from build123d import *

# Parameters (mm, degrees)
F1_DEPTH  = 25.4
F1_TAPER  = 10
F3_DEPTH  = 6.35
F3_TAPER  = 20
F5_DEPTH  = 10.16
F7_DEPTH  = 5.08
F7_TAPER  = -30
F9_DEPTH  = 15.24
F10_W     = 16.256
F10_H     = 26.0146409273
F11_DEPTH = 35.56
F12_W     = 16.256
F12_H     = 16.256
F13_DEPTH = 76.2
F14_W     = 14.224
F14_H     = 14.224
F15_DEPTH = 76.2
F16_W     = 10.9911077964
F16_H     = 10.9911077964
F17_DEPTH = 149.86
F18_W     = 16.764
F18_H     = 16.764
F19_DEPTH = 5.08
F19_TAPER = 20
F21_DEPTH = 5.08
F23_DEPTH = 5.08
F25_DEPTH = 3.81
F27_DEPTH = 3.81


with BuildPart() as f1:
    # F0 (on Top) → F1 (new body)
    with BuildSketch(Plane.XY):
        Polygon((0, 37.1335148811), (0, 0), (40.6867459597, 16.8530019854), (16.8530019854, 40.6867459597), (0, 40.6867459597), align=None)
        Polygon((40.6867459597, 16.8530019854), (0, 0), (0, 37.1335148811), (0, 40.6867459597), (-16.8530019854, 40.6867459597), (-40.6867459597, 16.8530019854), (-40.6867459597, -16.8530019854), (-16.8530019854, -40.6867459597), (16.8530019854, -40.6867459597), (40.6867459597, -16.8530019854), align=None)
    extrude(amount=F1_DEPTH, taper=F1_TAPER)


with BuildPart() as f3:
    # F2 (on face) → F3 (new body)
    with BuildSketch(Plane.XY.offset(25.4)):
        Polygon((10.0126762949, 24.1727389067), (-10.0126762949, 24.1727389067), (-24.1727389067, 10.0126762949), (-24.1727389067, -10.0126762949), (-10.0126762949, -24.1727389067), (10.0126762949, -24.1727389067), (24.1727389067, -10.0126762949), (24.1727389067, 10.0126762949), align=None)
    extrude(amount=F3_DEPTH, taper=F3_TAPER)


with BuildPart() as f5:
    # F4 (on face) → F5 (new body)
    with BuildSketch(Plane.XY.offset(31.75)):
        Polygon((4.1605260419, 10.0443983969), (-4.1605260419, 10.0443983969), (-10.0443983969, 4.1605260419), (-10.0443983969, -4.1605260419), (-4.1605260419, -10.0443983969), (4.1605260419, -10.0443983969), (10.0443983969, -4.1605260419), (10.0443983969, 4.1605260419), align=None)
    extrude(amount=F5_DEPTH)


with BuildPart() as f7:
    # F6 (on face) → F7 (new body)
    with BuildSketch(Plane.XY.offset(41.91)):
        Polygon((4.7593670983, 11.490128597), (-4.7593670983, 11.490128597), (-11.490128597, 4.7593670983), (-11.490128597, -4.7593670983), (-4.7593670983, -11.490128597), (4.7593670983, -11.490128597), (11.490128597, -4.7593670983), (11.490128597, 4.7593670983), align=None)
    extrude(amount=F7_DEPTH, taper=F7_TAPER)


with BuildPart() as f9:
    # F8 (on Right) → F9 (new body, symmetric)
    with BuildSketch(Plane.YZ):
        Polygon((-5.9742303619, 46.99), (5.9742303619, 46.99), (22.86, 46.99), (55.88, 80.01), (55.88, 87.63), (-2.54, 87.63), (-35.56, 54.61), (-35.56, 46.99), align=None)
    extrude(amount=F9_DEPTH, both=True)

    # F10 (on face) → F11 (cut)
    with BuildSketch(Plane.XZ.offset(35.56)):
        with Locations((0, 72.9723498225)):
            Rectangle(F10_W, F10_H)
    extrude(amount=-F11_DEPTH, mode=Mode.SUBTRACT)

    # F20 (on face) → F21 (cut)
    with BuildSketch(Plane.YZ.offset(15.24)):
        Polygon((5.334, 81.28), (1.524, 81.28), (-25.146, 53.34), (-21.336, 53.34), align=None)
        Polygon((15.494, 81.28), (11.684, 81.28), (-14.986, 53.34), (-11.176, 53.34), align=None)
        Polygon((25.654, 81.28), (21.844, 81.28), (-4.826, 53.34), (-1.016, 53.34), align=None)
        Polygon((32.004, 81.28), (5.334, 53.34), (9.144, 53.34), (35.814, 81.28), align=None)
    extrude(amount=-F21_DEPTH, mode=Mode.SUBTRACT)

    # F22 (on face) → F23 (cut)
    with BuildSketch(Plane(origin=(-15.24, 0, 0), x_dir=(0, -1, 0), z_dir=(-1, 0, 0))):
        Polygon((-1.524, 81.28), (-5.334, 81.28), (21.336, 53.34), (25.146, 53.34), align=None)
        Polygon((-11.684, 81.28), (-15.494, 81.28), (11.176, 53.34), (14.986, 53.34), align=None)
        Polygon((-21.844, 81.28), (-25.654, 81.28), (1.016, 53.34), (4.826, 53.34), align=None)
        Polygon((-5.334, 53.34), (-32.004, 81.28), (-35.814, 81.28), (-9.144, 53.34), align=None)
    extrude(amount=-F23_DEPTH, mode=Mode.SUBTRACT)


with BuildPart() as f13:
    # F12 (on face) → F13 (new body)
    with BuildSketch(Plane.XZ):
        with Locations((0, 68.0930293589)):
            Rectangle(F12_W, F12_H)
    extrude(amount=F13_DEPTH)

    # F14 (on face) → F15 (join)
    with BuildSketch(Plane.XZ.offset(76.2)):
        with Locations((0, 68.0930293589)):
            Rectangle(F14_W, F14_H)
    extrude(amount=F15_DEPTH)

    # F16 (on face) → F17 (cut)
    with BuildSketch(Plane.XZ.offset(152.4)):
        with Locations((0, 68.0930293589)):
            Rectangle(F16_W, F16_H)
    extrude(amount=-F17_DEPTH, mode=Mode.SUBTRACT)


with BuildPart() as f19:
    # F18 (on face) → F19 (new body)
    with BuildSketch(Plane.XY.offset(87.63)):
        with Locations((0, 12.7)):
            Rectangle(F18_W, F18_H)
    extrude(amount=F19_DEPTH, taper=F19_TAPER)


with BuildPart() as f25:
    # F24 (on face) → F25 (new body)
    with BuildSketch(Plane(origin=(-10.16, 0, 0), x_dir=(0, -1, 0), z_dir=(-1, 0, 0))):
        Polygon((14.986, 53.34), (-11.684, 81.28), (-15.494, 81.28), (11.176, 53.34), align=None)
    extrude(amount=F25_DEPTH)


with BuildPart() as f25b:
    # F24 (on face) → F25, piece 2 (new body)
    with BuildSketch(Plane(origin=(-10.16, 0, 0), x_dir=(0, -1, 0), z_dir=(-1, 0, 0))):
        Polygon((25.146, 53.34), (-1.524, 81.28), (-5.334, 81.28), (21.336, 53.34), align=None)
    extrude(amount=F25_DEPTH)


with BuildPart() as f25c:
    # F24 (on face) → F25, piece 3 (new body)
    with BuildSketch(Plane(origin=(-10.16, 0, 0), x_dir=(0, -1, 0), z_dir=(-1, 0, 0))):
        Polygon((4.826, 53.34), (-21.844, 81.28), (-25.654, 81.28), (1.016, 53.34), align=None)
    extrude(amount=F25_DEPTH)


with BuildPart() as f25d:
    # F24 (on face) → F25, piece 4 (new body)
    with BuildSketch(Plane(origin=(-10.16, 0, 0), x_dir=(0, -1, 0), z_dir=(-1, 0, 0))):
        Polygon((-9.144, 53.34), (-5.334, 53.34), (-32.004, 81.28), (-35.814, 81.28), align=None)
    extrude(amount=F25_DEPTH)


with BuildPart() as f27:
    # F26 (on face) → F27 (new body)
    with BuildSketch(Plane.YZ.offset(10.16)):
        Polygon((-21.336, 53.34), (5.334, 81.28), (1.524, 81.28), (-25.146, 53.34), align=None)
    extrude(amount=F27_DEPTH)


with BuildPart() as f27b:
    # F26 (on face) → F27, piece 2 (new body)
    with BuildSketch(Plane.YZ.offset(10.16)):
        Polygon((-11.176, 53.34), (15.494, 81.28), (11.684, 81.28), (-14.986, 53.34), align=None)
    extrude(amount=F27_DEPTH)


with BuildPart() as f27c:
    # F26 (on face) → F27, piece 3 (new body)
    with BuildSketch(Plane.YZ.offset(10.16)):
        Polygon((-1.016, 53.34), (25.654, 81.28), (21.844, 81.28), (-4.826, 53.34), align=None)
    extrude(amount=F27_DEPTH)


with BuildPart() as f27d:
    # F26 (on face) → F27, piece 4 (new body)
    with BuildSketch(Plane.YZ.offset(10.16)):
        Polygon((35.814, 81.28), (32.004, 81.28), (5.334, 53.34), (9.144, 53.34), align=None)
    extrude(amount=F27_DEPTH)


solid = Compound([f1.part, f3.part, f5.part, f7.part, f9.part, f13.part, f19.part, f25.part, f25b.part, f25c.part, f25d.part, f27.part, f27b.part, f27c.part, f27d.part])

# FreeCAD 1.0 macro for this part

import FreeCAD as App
import Part
import Sketcher
from FreeCAD import Vector
Q = App.Units.Quantity

doc = App.newDocument("Part")
body = doc.addObject("PartDesign::Body", "Body")

sketch1 = body.newObject("Sketcher::SketchObject", "Sketch")
sketch1.AttachmentSupport = (doc.getObject("XY_Plane"), [""])
sketch1.MapMode = "FlatFace"
sketch1.addGeometry([
    Part.LineSegment(Vector(41, 17, 0), Vector(17, 41, 0)),
    Part.LineSegment(Vector(17, 41, 0), Vector(-17, 41, 0)),
    Part.LineSegment(Vector(-17, 41, 0), Vector(-41, 17, 0)),
    Part.LineSegment(Vector(-41, 17, 0), Vector(-41, -17, 0)),
    Part.LineSegment(Vector(-41, -17, 0), Vector(-17, -41, 0)),
    Part.LineSegment(Vector(-17, -41, 0), Vector(17, -41, 0)),
    Part.LineSegment(Vector(17, -41, 0), Vector(41, -17, 0)),
    Part.LineSegment(Vector(41, -17, 0), Vector(41, 17, 0)),
], False)
sketch1.addConstraint([
    Sketcher.Constraint("Coincident", 0, 2, 1, 1),
    Sketcher.Constraint("Coincident", 1, 2, 2, 1),
    Sketcher.Constraint("Coincident", 2, 2, 3, 1),
    Sketcher.Constraint("Coincident", 3, 2, 4, 1),
    Sketcher.Constraint("Coincident", 4, 2, 5, 1),
    Sketcher.Constraint("Coincident", 5, 2, 6, 1),
    Sketcher.Constraint("Coincident", 6, 2, 7, 1),
    Sketcher.Constraint("Coincident", 7, 2, 0, 1),
    Sketcher.Constraint("Horizontal", 1),
    Sketcher.Constraint("Vertical", 3),
    Sketcher.Constraint("Horizontal", 5),
    Sketcher.Constraint("Vertical", 7),
    Sketcher.Constraint("Symmetric", 0, 2, 4, 2, -1, 1),
    Sketcher.Constraint("Symmetric", 2, 2, 6, 2, -1, 1),
    Sketcher.Constraint("Perpendicular", 0, 2),
    Sketcher.Constraint("Perpendicular", 2, 4),
    Sketcher.Constraint("Perpendicular", 4, 6),
    Sketcher.Constraint("Horizontal", 3, 2, 6, 2),
    Sketcher.Constraint("Vertical", 1, 2, 4, 2),
    Sketcher.Constraint("Equal", 5, 3),
    Sketcher.Constraint("DistanceX", -1, 1, 0, 2, 16.853002),
    Sketcher.Constraint("DistanceY", 4, 2, 1, 2, 81.373492),
])
pad1 = body.newObject("PartDesign::Pad", "Pad")
pad1.Profile = sketch1
pad1.Length = Q("1 in")
pad1.TaperAngle = -10
body2 = doc.addObject("PartDesign::Body", "Body001")

sketch2 = body2.newObject("Sketcher::SketchObject", "Sketch001")
sketch2.AttachmentSupport = (doc.getObject("XY_Plane001"), [""])
sketch2.MapMode = "FlatFace"
sketch2.AttachmentOffset = App.Placement(Vector(0, 0, 1 * 25.4), App.Rotation())
sketch2.addGeometry([
    Part.LineSegment(Vector(10, 24, 0), Vector(-10, 24, 0)),
    Part.LineSegment(Vector(-10, 24, 0), Vector(-24, 10, 0)),
    Part.LineSegment(Vector(-24, 10, 0), Vector(-24, -10, 0)),
    Part.LineSegment(Vector(-24, -10, 0), Vector(-10, -24, 0)),
    Part.LineSegment(Vector(-10, -24, 0), Vector(10, -24, 0)),
    Part.LineSegment(Vector(10, -24, 0), Vector(24, -10, 0)),
    Part.LineSegment(Vector(24, -10, 0), Vector(24, 10, 0)),
    Part.LineSegment(Vector(24, 10, 0), Vector(10, 24, 0)),
], False)
sketch2.addConstraint([
    Sketcher.Constraint("Coincident", 0, 2, 1, 1),
    Sketcher.Constraint("Coincident", 1, 2, 2, 1),
    Sketcher.Constraint("Coincident", 2, 2, 3, 1),
    Sketcher.Constraint("Coincident", 3, 2, 4, 1),
    Sketcher.Constraint("Coincident", 4, 2, 5, 1),
    Sketcher.Constraint("Coincident", 5, 2, 6, 1),
    Sketcher.Constraint("Coincident", 6, 2, 7, 1),
    Sketcher.Constraint("Coincident", 7, 2, 0, 1),
    Sketcher.Constraint("Horizontal", 0),
    Sketcher.Constraint("Vertical", 2),
    Sketcher.Constraint("Horizontal", 4),
    Sketcher.Constraint("Vertical", 6),
    Sketcher.Constraint("Symmetric", 0, 2, 4, 2, -1, 1),
    Sketcher.Constraint("Symmetric", 1, 2, 5, 2, -1, 1),
    Sketcher.Constraint("Perpendicular", 1, 3),
    Sketcher.Constraint("Perpendicular", 5, 7),
    Sketcher.Constraint("Horizontal", 2, 2, 5, 2),
    Sketcher.Constraint("Horizontal", 1, 2, 6, 2),
    Sketcher.Constraint("Vertical", 0, 2, 3, 2),
    Sketcher.Constraint("Equal", 4, 2),
    Sketcher.Constraint("DistanceX", 0, 2, -1, 1, Q("0.3941999 in")),
    Sketcher.Constraint("DistanceY", -1, 1, 0, 2, 24.172739),
])
pad2 = body2.newObject("PartDesign::Pad", "Pad001")
pad2.Profile = sketch2
pad2.Length = Q("0.25 in")
pad2.TaperAngle = -20
body3 = doc.addObject("PartDesign::Body", "Body002")

sketch3 = body3.newObject("Sketcher::SketchObject", "Sketch002")
sketch3.AttachmentSupport = (doc.getObject("XY_Plane002"), [""])
sketch3.MapMode = "FlatFace"
sketch3.AttachmentOffset = App.Placement(Vector(0, 0, 1.25 * 25.4), App.Rotation())
sketch3.addGeometry([
    Part.LineSegment(Vector(4, 10, 0), Vector(-4, 10, 0)),
    Part.LineSegment(Vector(-4, 10, 0), Vector(-10, 4, 0)),
    Part.LineSegment(Vector(-10, 4, 0), Vector(-10, -4, 0)),
    Part.LineSegment(Vector(-10, -4, 0), Vector(-4, -10, 0)),
    Part.LineSegment(Vector(-4, -10, 0), Vector(4, -10, 0)),
    Part.LineSegment(Vector(4, -10, 0), Vector(10, -4, 0)),
    Part.LineSegment(Vector(10, -4, 0), Vector(10, 4, 0)),
    Part.LineSegment(Vector(10, 4, 0), Vector(4, 10, 0)),
], False)
sketch3.addConstraint([
    Sketcher.Constraint("Coincident", 0, 2, 1, 1),
    Sketcher.Constraint("Coincident", 1, 2, 2, 1),
    Sketcher.Constraint("Coincident", 2, 2, 3, 1),
    Sketcher.Constraint("Coincident", 3, 2, 4, 1),
    Sketcher.Constraint("Coincident", 4, 2, 5, 1),
    Sketcher.Constraint("Coincident", 5, 2, 6, 1),
    Sketcher.Constraint("Coincident", 6, 2, 7, 1),
    Sketcher.Constraint("Coincident", 7, 2, 0, 1),
    Sketcher.Constraint("Horizontal", 0),
    Sketcher.Constraint("Vertical", 2),
    Sketcher.Constraint("Horizontal", 4),
    Sketcher.Constraint("Vertical", 6),
    Sketcher.Constraint("Symmetric", 0, 2, 4, 2, -1, 1),
    Sketcher.Constraint("Symmetric", 1, 2, 5, 2, -1, 1),
    Sketcher.Constraint("Perpendicular", 1, 3),
    Sketcher.Constraint("Perpendicular", 5, 7),
    Sketcher.Constraint("Horizontal", 2, 2, 5, 2),
    Sketcher.Constraint("Horizontal", 1, 2, 6, 2),
    Sketcher.Constraint("Vertical", 0, 2, 3, 2),
    Sketcher.Constraint("Equal", 4, 2),
    Sketcher.Constraint("DistanceY", -1, 1, 0, 2, 10.044398),
    Sketcher.Constraint("DistanceX", 0, 2, 0, 1, 8.321052),
])
pad3 = body3.newObject("PartDesign::Pad", "Pad002")
pad3.Profile = sketch3
pad3.Length = Q("0.4 in")
body4 = doc.addObject("PartDesign::Body", "Body003")

sketch4 = body4.newObject("Sketcher::SketchObject", "Sketch003")
sketch4.AttachmentSupport = (doc.getObject("XY_Plane003"), [""])
sketch4.MapMode = "FlatFace"
sketch4.AttachmentOffset = App.Placement(Vector(0, 0, 1.65 * 25.4), App.Rotation())
sketch4.addGeometry([
    Part.LineSegment(Vector(5, 11, 0), Vector(-5, 11, 0)),
    Part.LineSegment(Vector(-5, 11, 0), Vector(-11, 5, 0)),
    Part.LineSegment(Vector(-11, 5, 0), Vector(-11, -5, 0)),
    Part.LineSegment(Vector(-11, -5, 0), Vector(-5, -11, 0)),
    Part.LineSegment(Vector(-5, -11, 0), Vector(5, -11, 0)),
    Part.LineSegment(Vector(5, -11, 0), Vector(11, -5, 0)),
    Part.LineSegment(Vector(11, -5, 0), Vector(11, 5, 0)),
    Part.LineSegment(Vector(11, 5, 0), Vector(5, 11, 0)),
], False)
sketch4.addConstraint([
    Sketcher.Constraint("Coincident", 0, 2, 1, 1),
    Sketcher.Constraint("Coincident", 1, 2, 2, 1),
    Sketcher.Constraint("Coincident", 2, 2, 3, 1),
    Sketcher.Constraint("Coincident", 3, 2, 4, 1),
    Sketcher.Constraint("Coincident", 4, 2, 5, 1),
    Sketcher.Constraint("Coincident", 5, 2, 6, 1),
    Sketcher.Constraint("Coincident", 6, 2, 7, 1),
    Sketcher.Constraint("Coincident", 7, 2, 0, 1),
    Sketcher.Constraint("Horizontal", 0),
    Sketcher.Constraint("Vertical", 2),
    Sketcher.Constraint("Horizontal", 4),
    Sketcher.Constraint("Vertical", 6),
    Sketcher.Constraint("Symmetric", 0, 2, 4, 2, -1, 1),
    Sketcher.Constraint("Symmetric", 1, 2, 5, 2, -1, 1),
    Sketcher.Constraint("Perpendicular", 1, 3),
    Sketcher.Constraint("Perpendicular", 5, 7),
    Sketcher.Constraint("Horizontal", 2, 2, 5, 2),
    Sketcher.Constraint("Horizontal", 1, 2, 6, 2),
    Sketcher.Constraint("Vertical", 0, 2, 3, 2),
    Sketcher.Constraint("Equal", 4, 2),
    Sketcher.Constraint("DistanceX", 0, 2, 0, 1, 9.518734),
    Sketcher.Constraint("DistanceY", -1, 1, 0, 2, 11.490129),
])
pad4 = body4.newObject("PartDesign::Pad", "Pad003")
pad4.Profile = sketch4
pad4.Length = Q("0.2 in")
pad4.TaperAngle = 30
body5 = doc.addObject("PartDesign::Body", "Body004")

sketch5 = body5.newObject("Sketcher::SketchObject", "Sketch004")
sketch5.AttachmentSupport = (doc.getObject("YZ_Plane004"), [""])
sketch5.MapMode = "FlatFace"
sketch5.addGeometry([
    Part.LineSegment(Vector(23, 47, 0), Vector(56, 80, 0)),
    Part.LineSegment(Vector(56, 80, 0), Vector(56, 88, 0)),
    Part.LineSegment(Vector(56, 88, 0), Vector(-3, 88, 0)),
    Part.LineSegment(Vector(-3, 88, 0), Vector(-36, 55, 0)),
    Part.LineSegment(Vector(-36, 55, 0), Vector(-36, 47, 0)),
    Part.LineSegment(Vector(-36, 47, 0), Vector(23, 47, 0)),
], False)
sketch5.addConstraint([
    Sketcher.Constraint("Coincident", 0, 2, 1, 1),
    Sketcher.Constraint("Coincident", 1, 2, 2, 1),
    Sketcher.Constraint("Coincident", 2, 2, 3, 1),
    Sketcher.Constraint("Coincident", 3, 2, 4, 1),
    Sketcher.Constraint("Coincident", 4, 2, 5, 1),
    Sketcher.Constraint("Coincident", 5, 2, 0, 1),
    Sketcher.Constraint("Vertical", 1),
    Sketcher.Constraint("Horizontal", 2),
    Sketcher.Constraint("Vertical", 4),
    Sketcher.Constraint("Horizontal", 5),
    Sketcher.Constraint("Parallel", 0, 3),
    Sketcher.Constraint("Equal", 2, 5),
    Sketcher.Constraint("DistanceX", 2, 2, 2, 1, Q("2.3 in")),
    Sketcher.Constraint("DistanceY", 1, 1, 1, 2, Q("0.3 in")),
    Sketcher.Constraint("Angle", 0, Q("45 deg")),
    Sketcher.Constraint("DistanceY", 3, 2, 0, 2, Q("1 in")),
    Sketcher.Constraint("DistanceX", -1, 1, 0, 2, Q("2.2 in")),
    Sketcher.Constraint("DistanceY", -1, 1, 0, 2, Q("3.15 in")),
])
pad5 = body5.newObject("PartDesign::Pad", "Pad004")
pad5.Profile = sketch5
pad5.Length = Q("1.2 in")
pad5.Midplane = True

sketch6 = body5.newObject("Sketcher::SketchObject", "Sketch005")
sketch6.AttachmentSupport = (doc.getObject("XZ_Plane004"), [""])
sketch6.MapMode = "FlatFace"
sketch6.AttachmentOffset = App.Placement(Vector(0, 0, 1.4 * 25.4), App.Rotation())
sketch6.addGeometry([
    Part.LineSegment(Vector(-8, 86, 0), Vector(-8, 60, 0)),
    Part.LineSegment(Vector(-8, 60, 0), Vector(8, 60, 0)),
    Part.LineSegment(Vector(8, 60, 0), Vector(8, 86, 0)),
    Part.LineSegment(Vector(8, 86, 0), Vector(-8, 86, 0)),
], False)
sketch6.addConstraint([
    Sketcher.Constraint("Coincident", 0, 2, 1, 1),
    Sketcher.Constraint("Coincident", 1, 2, 2, 1),
    Sketcher.Constraint("Coincident", 2, 2, 3, 1),
    Sketcher.Constraint("Coincident", 3, 2, 0, 1),
    Sketcher.Constraint("Vertical", 0),
    Sketcher.Constraint("Horizontal", 1),
    Sketcher.Constraint("Vertical", 2),
    Sketcher.Constraint("Horizontal", 3),
    Sketcher.Constraint("DistanceX", 1, 1, 1, 2, Q("0.64 in")),
    Sketcher.Constraint("DistanceX", 0, 2, -1, 1, Q("0.32 in")),
    Sketcher.Constraint("DistanceY", 0, 2, 0, 1, 26.014641),
    Sketcher.Constraint("DistanceY", -1, 1, 0, 2, 59.965029),
])
pocket1 = body5.newObject("PartDesign::Pocket", "Pocket")
pocket1.Profile = sketch6
pocket1.Length = Q("1.4 in")

sketch7 = body5.newObject("Sketcher::SketchObject", "Sketch006")
sketch7.AttachmentSupport = (doc.getObject("YZ_Plane004"), [""])
sketch7.MapMode = "FlatFace"
sketch7.AttachmentOffset = App.Placement(Vector(0, 0, 0.6 * 25.4), App.Rotation())
sketch7.addGeometry([
    Part.LineSegment(Vector(5.3, 81.3, 0), Vector(1.5, 81.3, 0)),
    Part.LineSegment(Vector(1.5, 81.3, 0), Vector(-25.1, 53.3, 0)),
    Part.LineSegment(Vector(-25.1, 53.3, 0), Vector(-21.3, 53.3, 0)),
    Part.LineSegment(Vector(-21.3, 53.3, 0), Vector(5.3, 81.3, 0)),
    Part.LineSegment(Vector(15.5, 81.3, 0), Vector(11.7, 81.3, 0)),
    Part.LineSegment(Vector(11.7, 81.3, 0), Vector(-15, 53.3, 0)),
    Part.LineSegment(Vector(-15, 53.3, 0), Vector(-11.2, 53.3, 0)),
    Part.LineSegment(Vector(-11.2, 53.3, 0), Vector(15.5, 81.3, 0)),
    Part.LineSegment(Vector(25.7, 81.3, 0), Vector(21.8, 81.3, 0)),
    Part.LineSegment(Vector(21.8, 81.3, 0), Vector(-4.8, 53.3, 0)),
    Part.LineSegment(Vector(-4.8, 53.3, 0), Vector(-1, 53.3, 0)),
    Part.LineSegment(Vector(-1, 53.3, 0), Vector(25.7, 81.3, 0)),
    Part.LineSegment(Vector(32, 81.3, 0), Vector(5.3, 53.3, 0)),
    Part.LineSegment(Vector(5.3, 53.3, 0), Vector(9.1, 53.3, 0)),
    Part.LineSegment(Vector(9.1, 53.3, 0), Vector(35.8, 81.3, 0)),
    Part.LineSegment(Vector(35.8, 81.3, 0), Vector(32, 81.3, 0)),
], False)
sketch7.addConstraint([
    Sketcher.Constraint("Coincident", 0, 2, 1, 1),
    Sketcher.Constraint("Coincident", 1, 2, 2, 1),
    Sketcher.Constraint("Coincident", 2, 2, 3, 1),
    Sketcher.Constraint("Coincident", 3, 2, 0, 1),
    Sketcher.Constraint("Coincident", 4, 2, 5, 1),
    Sketcher.Constraint("Coincident", 5, 2, 6, 1),
    Sketcher.Constraint("Coincident", 6, 2, 7, 1),
    Sketcher.Constraint("Coincident", 7, 2, 4, 1),
    Sketcher.Constraint("Coincident", 8, 2, 9, 1),
    Sketcher.Constraint("Coincident", 9, 2, 10, 1),
    Sketcher.Constraint("Coincident", 10, 2, 11, 1),
    Sketcher.Constraint("Coincident", 11, 2, 8, 1),
    Sketcher.Constraint("Coincident", 12, 2, 13, 1),
    Sketcher.Constraint("Coincident", 13, 2, 14, 1),
    Sketcher.Constraint("Coincident", 14, 2, 15, 1),
    Sketcher.Constraint("Coincident", 15, 2, 12, 1),
    Sketcher.Constraint("Horizontal", 0),
    Sketcher.Constraint("Horizontal", 2),
    Sketcher.Constraint("Horizontal", 4),
    Sketcher.Constraint("Horizontal", 6),
    Sketcher.Constraint("Horizontal", 8),
    Sketcher.Constraint("Horizontal", 10),
    Sketcher.Constraint("Horizontal", 13),
    Sketcher.Constraint("Horizontal", 15),
    Sketcher.Constraint("Parallel", 1, 3),
    Sketcher.Constraint("Parallel", 3, 5),
    Sketcher.Constraint("Parallel", 5, 7),
    Sketcher.Constraint("Parallel", 7, 9),
    Sketcher.Constraint("Parallel", 9, 11),
    Sketcher.Constraint("Parallel", 11, 12),
    Sketcher.Constraint("Parallel", 12, 14),
    Sketcher.Constraint("Horizontal", 3, 2, 4, 2),
    Sketcher.Constraint("Horizontal", 2, 2, 5, 2),
    Sketcher.Constraint("Horizontal", 7, 2, 8, 2),
    Sketcher.Constraint("Horizontal", 6, 2, 9, 2),
    Sketcher.Constraint("Horizontal", 10, 2, 12, 2),
    Sketcher.Constraint("Horizontal", 11, 2, 14, 2),
    Sketcher.Constraint("Vertical", 3, 2, 12, 2),
    Sketcher.Constraint("Equal", 2, 4),
    Sketcher.Constraint("Equal", 6, 8),
    Sketcher.Constraint("Equal", 10, 13),
    Sketcher.Constraint("DistanceX", 0, 2, 0, 1, Q("0.15 in")),
    Sketcher.Constraint("DistanceY", -1, 1, 0, 2, Q("3.2 in")),
    Sketcher.Constraint("DistanceY", -1, 1, 1, 2, Q("2.1 in")),
    Sketcher.Constraint("DistanceX", 2, 2, 0, 2, Q("0.9 in")),
    Sketcher.Constraint("DistanceX", 0, 2, 4, 2, Q("0.4 in")),
    Sketcher.Constraint("DistanceX", 4, 2, 8, 2, Q("0.4 in")),
    Sketcher.Constraint("DistanceX", -1, 1, 0, 2, Q("0.06 in")),
])
pocket2 = body5.newObject("PartDesign::Pocket", "Pocket001")
pocket2.Profile = sketch7
pocket2.Length = Q("0.2 in")

sketch8 = body5.newObject("Sketcher::SketchObject", "Sketch007")
sketch8.AttachmentSupport = (doc.getObject("YZ_Plane004"), [""])
sketch8.MapMode = "FlatFace"
sketch8.AttachmentOffset = App.Placement(Vector(0, 0, -0.6 * 25.4), App.Rotation())
sketch8.addGeometry([
    Part.LineSegment(Vector(1.5, 81.3, 0), Vector(5.3, 81.3, 0)),
    Part.LineSegment(Vector(5.3, 81.3, 0), Vector(-21.3, 53.3, 0)),
    Part.LineSegment(Vector(-21.3, 53.3, 0), Vector(-25.1, 53.3, 0)),
    Part.LineSegment(Vector(-25.1, 53.3, 0), Vector(1.5, 81.3, 0)),
    Part.LineSegment(Vector(11.7, 81.3, 0), Vector(15.5, 81.3, 0)),
    Part.LineSegment(Vector(15.5, 81.3, 0), Vector(-11.2, 53.3, 0)),
    Part.LineSegment(Vector(-11.2, 53.3, 0), Vector(-15, 53.3, 0)),
    Part.LineSegment(Vector(-15, 53.3, 0), Vector(11.7, 81.3, 0)),
    Part.LineSegment(Vector(21.8, 81.3, 0), Vector(25.7, 81.3, 0)),
    Part.LineSegment(Vector(25.7, 81.3, 0), Vector(-1, 53.3, 0)),
    Part.LineSegment(Vector(-1, 53.3, 0), Vector(-4.8, 53.3, 0)),
    Part.LineSegment(Vector(-4.8, 53.3, 0), Vector(21.8, 81.3, 0)),
    Part.LineSegment(Vector(5.3, 53.3, 0), Vector(32, 81.3, 0)),
    Part.LineSegment(Vector(32, 81.3, 0), Vector(35.8, 81.3, 0)),
    Part.LineSegment(Vector(35.8, 81.3, 0), Vector(9.1, 53.3, 0)),
    Part.LineSegment(Vector(9.1, 53.3, 0), Vector(5.3, 53.3, 0)),
], False)
sketch8.addConstraint([
    Sketcher.Constraint("Coincident", 0, 2, 1, 1),
    Sketcher.Constraint("Coincident", 1, 2, 2, 1),
    Sketcher.Constraint("Coincident", 2, 2, 3, 1),
    Sketcher.Constraint("Coincident", 3, 2, 0, 1),
    Sketcher.Constraint("Coincident", 4, 2, 5, 1),
    Sketcher.Constraint("Coincident", 5, 2, 6, 1),
    Sketcher.Constraint("Coincident", 6, 2, 7, 1),
    Sketcher.Constraint("Coincident", 7, 2, 4, 1),
    Sketcher.Constraint("Coincident", 8, 2, 9, 1),
    Sketcher.Constraint("Coincident", 9, 2, 10, 1),
    Sketcher.Constraint("Coincident", 10, 2, 11, 1),
    Sketcher.Constraint("Coincident", 11, 2, 8, 1),
    Sketcher.Constraint("Coincident", 12, 2, 13, 1),
    Sketcher.Constraint("Coincident", 13, 2, 14, 1),
    Sketcher.Constraint("Coincident", 14, 2, 15, 1),
    Sketcher.Constraint("Coincident", 15, 2, 12, 1),
    Sketcher.Constraint("Horizontal", 0),
    Sketcher.Constraint("Horizontal", 2),
    Sketcher.Constraint("Horizontal", 4),
    Sketcher.Constraint("Horizontal", 6),
    Sketcher.Constraint("Horizontal", 8),
    Sketcher.Constraint("Horizontal", 10),
    Sketcher.Constraint("Horizontal", 13),
    Sketcher.Constraint("Horizontal", 15),
    Sketcher.Constraint("Parallel", 1, 3),
    Sketcher.Constraint("Parallel", 3, 5),
    Sketcher.Constraint("Parallel", 5, 7),
    Sketcher.Constraint("Parallel", 7, 9),
    Sketcher.Constraint("Parallel", 9, 11),
    Sketcher.Constraint("Parallel", 11, 12),
    Sketcher.Constraint("Parallel", 12, 14),
    Sketcher.Constraint("Horizontal", 3, 2, 4, 2),
    Sketcher.Constraint("Horizontal", 2, 2, 5, 2),
    Sketcher.Constraint("Horizontal", 7, 2, 8, 2),
    Sketcher.Constraint("Horizontal", 6, 2, 9, 2),
    Sketcher.Constraint("Horizontal", 11, 2, 12, 2),
    Sketcher.Constraint("Horizontal", 10, 2, 14, 2),
    Sketcher.Constraint("Vertical", 0, 2, 15, 2),
    Sketcher.Constraint("Equal", 2, 4),
    Sketcher.Constraint("Equal", 6, 8),
    Sketcher.Constraint("Equal", 10, 13),
    Sketcher.Constraint("DistanceX", 0, 1, 0, 2, Q("0.15 in")),
    Sketcher.Constraint("DistanceY", -1, 1, 0, 2, Q("3.2 in")),
    Sketcher.Constraint("DistanceY", -1, 1, 1, 2, Q("2.1 in")),
    Sketcher.Constraint("DistanceX", 2, 2, 0, 2, Q("1.2 in")),
    Sketcher.Constraint("DistanceX", 0, 2, 4, 2, Q("0.4 in")),
    Sketcher.Constraint("DistanceX", 4, 2, 8, 2, Q("0.4 in")),
    Sketcher.Constraint("DistanceX", -1, 1, 0, 2, Q("0.21 in")),
])
pocket3 = body5.newObject("PartDesign::Pocket", "Pocket002")
pocket3.Profile = sketch8
pocket3.Length = Q("0.2 in")
pocket3.Reversed = True
body6 = doc.addObject("PartDesign::Body", "Body005")

sketch9 = body6.newObject("Sketcher::SketchObject", "Sketch008")
sketch9.AttachmentSupport = (doc.getObject("XZ_Plane005"), [""])
sketch9.MapMode = "FlatFace"
sketch9.addGeometry([
    Part.LineSegment(Vector(-8, 76, 0), Vector(-8, 60, 0)),
    Part.LineSegment(Vector(-8, 60, 0), Vector(8, 60, 0)),
    Part.LineSegment(Vector(8, 60, 0), Vector(8, 76, 0)),
    Part.LineSegment(Vector(8, 76, 0), Vector(-8, 76, 0)),
], False)
sketch9.addConstraint([
    Sketcher.Constraint("Coincident", 0, 2, 1, 1),
    Sketcher.Constraint("Coincident", 1, 2, 2, 1),
    Sketcher.Constraint("Coincident", 2, 2, 3, 1),
    Sketcher.Constraint("Coincident", 3, 2, 0, 1),
    Sketcher.Constraint("Vertical", 0),
    Sketcher.Constraint("Horizontal", 1),
    Sketcher.Constraint("Vertical", 2),
    Sketcher.Constraint("Horizontal", 3),
    Sketcher.Constraint("Equal", 3, 0),
    Sketcher.Constraint("DistanceX", 1, 1, 1, 2, Q("0.64 in")),
    Sketcher.Constraint("DistanceX", 0, 2, -1, 1, Q("0.32 in")),
    Sketcher.Constraint("DistanceY", -1, 1, 0, 2, 59.965029),
])
pad6 = body6.newObject("PartDesign::Pad", "Pad005")
pad6.Profile = sketch9
pad6.Length = Q("3 in")

sketch10 = body6.newObject("Sketcher::SketchObject", "Sketch009")
sketch10.AttachmentSupport = (doc.getObject("XZ_Plane005"), [""])
sketch10.MapMode = "FlatFace"
sketch10.AttachmentOffset = App.Placement(Vector(0, 0, 3 * 25.4), App.Rotation())
sketch10.addGeometry([
    Part.LineSegment(Vector(-7, 75, 0), Vector(-7, 61, 0)),
    Part.LineSegment(Vector(-7, 61, 0), Vector(7, 61, 0)),
    Part.LineSegment(Vector(7, 61, 0), Vector(7, 75, 0)),
    Part.LineSegment(Vector(7, 75, 0), Vector(-7, 75, 0)),
], False)
sketch10.addConstraint([
    Sketcher.Constraint("Coincident", 0, 2, 1, 1),
    Sketcher.Constraint("Coincident", 1, 2, 2, 1),
    Sketcher.Constraint("Coincident", 2, 2, 3, 1),
    Sketcher.Constraint("Coincident", 3, 2, 0, 1),
    Sketcher.Constraint("Vertical", 0),
    Sketcher.Constraint("Horizontal", 1),
    Sketcher.Constraint("Vertical", 2),
    Sketcher.Constraint("Horizontal", 3),
    Sketcher.Constraint("Equal", 3, 0),
    Sketcher.Constraint("DistanceX", 1, 1, 1, 2, Q("0.56 in")),
    Sketcher.Constraint("DistanceX", 0, 2, -1, 1, Q("0.28 in")),
    Sketcher.Constraint("DistanceY", -1, 1, 0, 2, 60.981029),
])
pad7 = body6.newObject("PartDesign::Pad", "Pad006")
pad7.Profile = sketch10
pad7.Length = Q("3 in")

sketch11 = body6.newObject("Sketcher::SketchObject", "Sketch010")
sketch11.AttachmentSupport = (doc.getObject("XZ_Plane005"), [""])
sketch11.MapMode = "FlatFace"
sketch11.AttachmentOffset = App.Placement(Vector(0, 0, 6 * 25.4), App.Rotation())
sketch11.addGeometry([
    Part.LineSegment(Vector(-5, 74, 0), Vector(-5, 63, 0)),
    Part.LineSegment(Vector(-5, 63, 0), Vector(5, 63, 0)),
    Part.LineSegment(Vector(5, 63, 0), Vector(5, 74, 0)),
    Part.LineSegment(Vector(5, 74, 0), Vector(-5, 74, 0)),
], False)
sketch11.addConstraint([
    Sketcher.Constraint("Coincident", 0, 2, 1, 1),
    Sketcher.Constraint("Coincident", 1, 2, 2, 1),
    Sketcher.Constraint("Coincident", 2, 2, 3, 1),
    Sketcher.Constraint("Coincident", 3, 2, 0, 1),
    Sketcher.Constraint("Vertical", 0),
    Sketcher.Constraint("Horizontal", 1),
    Sketcher.Constraint("Vertical", 2),
    Sketcher.Constraint("Horizontal", 3),
    Sketcher.Constraint("Equal", 3, 0),
    Sketcher.Constraint("DistanceX", 1, 1, 1, 2, 10.991108),
    Sketcher.Constraint("DistanceX", 0, 2, -1, 1, 5.495554),
    Sketcher.Constraint("DistanceY", -1, 1, 0, 2, 62.597475),
])
pocket4 = body6.newObject("PartDesign::Pocket", "Pocket003")
pocket4.Profile = sketch11
pocket4.Length = Q("5.9 in")
body7 = doc.addObject("PartDesign::Body", "Body006")

sketch12 = body7.newObject("Sketcher::SketchObject", "Sketch011")
sketch12.AttachmentSupport = (doc.getObject("XY_Plane006"), [""])
sketch12.MapMode = "FlatFace"
sketch12.AttachmentOffset = App.Placement(Vector(0, 0, 3.45 * 25.4), App.Rotation())
sketch12.addGeometry([
    Part.LineSegment(Vector(-8, 21, 0), Vector(-8, 4, 0)),
    Part.LineSegment(Vector(-8, 4, 0), Vector(8, 4, 0)),
    Part.LineSegment(Vector(8, 4, 0), Vector(8, 21, 0)),
    Part.LineSegment(Vector(8, 21, 0), Vector(-8, 21, 0)),
], False)
sketch12.addConstraint([
    Sketcher.Constraint("Coincident", 0, 2, 1, 1),
    Sketcher.Constraint("Coincident", 1, 2, 2, 1),
    Sketcher.Constraint("Coincident", 2, 2, 3, 1),
    Sketcher.Constraint("Coincident", 3, 2, 0, 1),
    Sketcher.Constraint("Vertical", 0),
    Sketcher.Constraint("Horizontal", 1),
    Sketcher.Constraint("Vertical", 2),
    Sketcher.Constraint("Horizontal", 3),
    Sketcher.Constraint("Equal", 3, 0),
    Sketcher.Constraint("DistanceX", 1, 1, 1, 2, Q("0.66 in")),
    Sketcher.Constraint("DistanceX", 0, 2, -1, 1, Q("0.33 in")),
    Sketcher.Constraint("DistanceY", -1, 1, 0, 2, Q("0.17 in")),
])
pad8 = body7.newObject("PartDesign::Pad", "Pad007")
pad8.Profile = sketch12
pad8.Length = Q("0.2 in")
pad8.TaperAngle = -20
body8 = doc.addObject("PartDesign::Body", "Body007")

sketch13 = body8.newObject("Sketcher::SketchObject", "Sketch012")
sketch13.AttachmentSupport = (doc.getObject("YZ_Plane007"), [""])
sketch13.MapMode = "FlatFace"
sketch13.AttachmentOffset = App.Placement(Vector(0, 0, -0.4 * 25.4), App.Rotation())
sketch13.addGeometry([
    Part.LineSegment(Vector(-15, 53.3, 0), Vector(11.7, 81.3, 0)),
    Part.LineSegment(Vector(11.7, 81.3, 0), Vector(15.5, 81.3, 0)),
    Part.LineSegment(Vector(15.5, 81.3, 0), Vector(-11.2, 53.3, 0)),
    Part.LineSegment(Vector(-11.2, 53.3, 0), Vector(-15, 53.3, 0)),
], False)
sketch13.addConstraint([
    Sketcher.Constraint("Coincident", 0, 2, 1, 1),
    Sketcher.Constraint("Coincident", 1, 2, 2, 1),
    Sketcher.Constraint("Coincident", 2, 2, 3, 1),
    Sketcher.Constraint("Coincident", 3, 2, 0, 1),
    Sketcher.Constraint("Horizontal", 1),
    Sketcher.Constraint("Horizontal", 3),
    Sketcher.Constraint("Parallel", 0, 2),
    Sketcher.Constraint("DistanceX", 1, 1, 1, 2, Q("0.15 in")),
    Sketcher.Constraint("DistanceY", -1, 1, 0, 2, Q("3.2 in")),
    Sketcher.Constraint("DistanceY", -1, 1, 2, 2, Q("2.1 in")),
    Sketcher.Constraint("DistanceX", 2, 2, 0, 2, Q("0.9 in")),
    Sketcher.Constraint("DistanceX", -1, 1, 0, 2, Q("0.46 in")),
])
pad9 = body8.newObject("PartDesign::Pad", "Pad008")
pad9.Profile = sketch13
pad9.Length = Q("0.15 in")
pad9.Reversed = True
body9 = doc.addObject("PartDesign::Body", "Body008")

sketch14 = body9.newObject("Sketcher::SketchObject", "Sketch013")
sketch14.AttachmentSupport = (doc.getObject("YZ_Plane008"), [""])
sketch14.MapMode = "FlatFace"
sketch14.AttachmentOffset = App.Placement(Vector(0, 0, -0.4 * 25.4), App.Rotation())
sketch14.addGeometry([
    Part.LineSegment(Vector(-25.1, 53.3, 0), Vector(1.5, 81.3, 0)),
    Part.LineSegment(Vector(1.5, 81.3, 0), Vector(5.3, 81.3, 0)),
    Part.LineSegment(Vector(5.3, 81.3, 0), Vector(-21.3, 53.3, 0)),
    Part.LineSegment(Vector(-21.3, 53.3, 0), Vector(-25.1, 53.3, 0)),
], False)
sketch14.addConstraint([
    Sketcher.Constraint("Coincident", 0, 2, 1, 1),
    Sketcher.Constraint("Coincident", 1, 2, 2, 1),
    Sketcher.Constraint("Coincident", 2, 2, 3, 1),
    Sketcher.Constraint("Coincident", 3, 2, 0, 1),
    Sketcher.Constraint("Horizontal", 1),
    Sketcher.Constraint("Horizontal", 3),
    Sketcher.Constraint("Parallel", 0, 2),
    Sketcher.Constraint("DistanceX", 1, 1, 1, 2, Q("0.15 in")),
    Sketcher.Constraint("DistanceY", -1, 1, 0, 2, Q("3.2 in")),
    Sketcher.Constraint("DistanceY", -1, 1, 2, 2, Q("2.1 in")),
    Sketcher.Constraint("DistanceX", 2, 2, 0, 2, Q("0.9 in")),
    Sketcher.Constraint("DistanceX", -1, 1, 0, 2, Q("0.06 in")),
])
pad10 = body9.newObject("PartDesign::Pad", "Pad009")
pad10.Profile = sketch14
pad10.Length = Q("0.15 in")
pad10.Reversed = True
body10 = doc.addObject("PartDesign::Body", "Body009")

sketch15 = body10.newObject("Sketcher::SketchObject", "Sketch014")
sketch15.AttachmentSupport = (doc.getObject("YZ_Plane009"), [""])
sketch15.MapMode = "FlatFace"
sketch15.AttachmentOffset = App.Placement(Vector(0, 0, -0.4 * 25.4), App.Rotation())
sketch15.addGeometry([
    Part.LineSegment(Vector(-4.8, 53.3, 0), Vector(21.8, 81.3, 0)),
    Part.LineSegment(Vector(21.8, 81.3, 0), Vector(25.7, 81.3, 0)),
    Part.LineSegment(Vector(25.7, 81.3, 0), Vector(-1, 53.3, 0)),
    Part.LineSegment(Vector(-1, 53.3, 0), Vector(-4.8, 53.3, 0)),
], False)
sketch15.addConstraint([
    Sketcher.Constraint("Coincident", 0, 2, 1, 1),
    Sketcher.Constraint("Coincident", 1, 2, 2, 1),
    Sketcher.Constraint("Coincident", 2, 2, 3, 1),
    Sketcher.Constraint("Coincident", 3, 2, 0, 1),
    Sketcher.Constraint("Horizontal", 1),
    Sketcher.Constraint("Horizontal", 3),
    Sketcher.Constraint("Parallel", 0, 2),
    Sketcher.Constraint("DistanceX", 1, 1, 1, 2, Q("0.15 in")),
    Sketcher.Constraint("DistanceY", -1, 1, 0, 2, Q("3.2 in")),
    Sketcher.Constraint("DistanceY", -1, 1, 2, 2, Q("2.1 in")),
    Sketcher.Constraint("DistanceX", 2, 2, 0, 2, Q("0.9 in")),
    Sketcher.Constraint("DistanceX", -1, 1, 0, 2, Q("0.86 in")),
])
pad11 = body10.newObject("PartDesign::Pad", "Pad010")
pad11.Profile = sketch15
pad11.Length = Q("0.15 in")
pad11.Reversed = True
body11 = doc.addObject("PartDesign::Body", "Body010")

sketch16 = body11.newObject("Sketcher::SketchObject", "Sketch015")
sketch16.AttachmentSupport = (doc.getObject("YZ_Plane010"), [""])
sketch16.MapMode = "FlatFace"
sketch16.AttachmentOffset = App.Placement(Vector(0, 0, -0.4 * 25.4), App.Rotation())
sketch16.addGeometry([
    Part.LineSegment(Vector(9.1, 53.3, 0), Vector(5.3, 53.3, 0)),
    Part.LineSegment(Vector(5.3, 53.3, 0), Vector(32, 81.3, 0)),
    Part.LineSegment(Vector(32, 81.3, 0), Vector(35.8, 81.3, 0)),
    Part.LineSegment(Vector(35.8, 81.3, 0), Vector(9.1, 53.3, 0)),
], False)
sketch16.addConstraint([
    Sketcher.Constraint("Coincident", 0, 2, 1, 1),
    Sketcher.Constraint("Coincident", 1, 2, 2, 1),
    Sketcher.Constraint("Coincident", 2, 2, 3, 1),
    Sketcher.Constraint("Coincident", 3, 2, 0, 1),
    Sketcher.Constraint("Horizontal", 0),
    Sketcher.Constraint("Horizontal", 2),
    Sketcher.Constraint("Parallel", 1, 3),
    Sketcher.Constraint("DistanceX", 0, 2, 0, 1, Q("0.15 in")),
    Sketcher.Constraint("DistanceY", -1, 1, 0, 2, Q("2.1 in")),
    Sketcher.Constraint("DistanceY", -1, 1, 1, 2, Q("3.2 in")),
    Sketcher.Constraint("DistanceX", 0, 2, 2, 2, Q("1.2 in")),
    Sketcher.Constraint("DistanceX", -1, 1, 0, 2, Q("0.21 in")),
])
pad12 = body11.newObject("PartDesign::Pad", "Pad011")
pad12.Profile = sketch16
pad12.Length = Q("0.15 in")
pad12.Reversed = True
body12 = doc.addObject("PartDesign::Body", "Body011")

sketch17 = body12.newObject("Sketcher::SketchObject", "Sketch016")
sketch17.AttachmentSupport = (doc.getObject("YZ_Plane011"), [""])
sketch17.MapMode = "FlatFace"
sketch17.AttachmentOffset = App.Placement(Vector(0, 0, 0.4 * 25.4), App.Rotation())
sketch17.addGeometry([
    Part.LineSegment(Vector(-21.3, 53.3, 0), Vector(5.3, 81.3, 0)),
    Part.LineSegment(Vector(5.3, 81.3, 0), Vector(1.5, 81.3, 0)),
    Part.LineSegment(Vector(1.5, 81.3, 0), Vector(-25.1, 53.3, 0)),
    Part.LineSegment(Vector(-25.1, 53.3, 0), Vector(-21.3, 53.3, 0)),
], False)
sketch17.addConstraint([
    Sketcher.Constraint("Coincident", 0, 2, 1, 1),
    Sketcher.Constraint("Coincident", 1, 2, 2, 1),
    Sketcher.Constraint("Coincident", 2, 2, 3, 1),
    Sketcher.Constraint("Coincident", 3, 2, 0, 1),
    Sketcher.Constraint("Horizontal", 1),
    Sketcher.Constraint("Horizontal", 3),
    Sketcher.Constraint("Parallel", 0, 2),
    Sketcher.Constraint("DistanceX", 1, 2, 1, 1, Q("0.15 in")),
    Sketcher.Constraint("DistanceY", -1, 1, 0, 2, Q("3.2 in")),
    Sketcher.Constraint("DistanceY", -1, 1, 2, 2, Q("2.1 in")),
    Sketcher.Constraint("DistanceX", 2, 2, 0, 2, Q("1.2 in")),
    Sketcher.Constraint("DistanceX", -1, 1, 0, 2, Q("0.21 in")),
])
pad13 = body12.newObject("PartDesign::Pad", "Pad012")
pad13.Profile = sketch17
pad13.Length = Q("0.15 in")
body13 = doc.addObject("PartDesign::Body", "Body012")

sketch18 = body13.newObject("Sketcher::SketchObject", "Sketch017")
sketch18.AttachmentSupport = (doc.getObject("YZ_Plane012"), [""])
sketch18.MapMode = "FlatFace"
sketch18.AttachmentOffset = App.Placement(Vector(0, 0, 0.4 * 25.4), App.Rotation())
sketch18.addGeometry([
    Part.LineSegment(Vector(-11.2, 53.3, 0), Vector(15.5, 81.3, 0)),
    Part.LineSegment(Vector(15.5, 81.3, 0), Vector(11.7, 81.3, 0)),
    Part.LineSegment(Vector(11.7, 81.3, 0), Vector(-15, 53.3, 0)),
    Part.LineSegment(Vector(-15, 53.3, 0), Vector(-11.2, 53.3, 0)),
], False)
sketch18.addConstraint([
    Sketcher.Constraint("Coincident", 0, 2, 1, 1),
    Sketcher.Constraint("Coincident", 1, 2, 2, 1),
    Sketcher.Constraint("Coincident", 2, 2, 3, 1),
    Sketcher.Constraint("Coincident", 3, 2, 0, 1),
    Sketcher.Constraint("Horizontal", 1),
    Sketcher.Constraint("Horizontal", 3),
    Sketcher.Constraint("Parallel", 0, 2),
    Sketcher.Constraint("DistanceX", 1, 2, 1, 1, Q("0.15 in")),
    Sketcher.Constraint("DistanceY", -1, 1, 0, 2, Q("3.2 in")),
    Sketcher.Constraint("DistanceY", -1, 1, 2, 2, Q("2.1 in")),
    Sketcher.Constraint("DistanceX", 2, 2, 0, 2, Q("1.2 in")),
    Sketcher.Constraint("DistanceX", -1, 1, 0, 2, Q("0.61 in")),
])
pad14 = body13.newObject("PartDesign::Pad", "Pad013")
pad14.Profile = sketch18
pad14.Length = Q("0.15 in")
body14 = doc.addObject("PartDesign::Body", "Body013")

sketch19 = body14.newObject("Sketcher::SketchObject", "Sketch018")
sketch19.AttachmentSupport = (doc.getObject("YZ_Plane013"), [""])
sketch19.MapMode = "FlatFace"
sketch19.AttachmentOffset = App.Placement(Vector(0, 0, 0.4 * 25.4), App.Rotation())
sketch19.addGeometry([
    Part.LineSegment(Vector(-1, 53.3, 0), Vector(25.7, 81.3, 0)),
    Part.LineSegment(Vector(25.7, 81.3, 0), Vector(21.8, 81.3, 0)),
    Part.LineSegment(Vector(21.8, 81.3, 0), Vector(-4.8, 53.3, 0)),
    Part.LineSegment(Vector(-4.8, 53.3, 0), Vector(-1, 53.3, 0)),
], False)
sketch19.addConstraint([
    Sketcher.Constraint("Coincident", 0, 2, 1, 1),
    Sketcher.Constraint("Coincident", 1, 2, 2, 1),
    Sketcher.Constraint("Coincident", 2, 2, 3, 1),
    Sketcher.Constraint("Coincident", 3, 2, 0, 1),
    Sketcher.Constraint("Horizontal", 1),
    Sketcher.Constraint("Horizontal", 3),
    Sketcher.Constraint("Parallel", 0, 2),
    Sketcher.Constraint("DistanceX", 1, 2, 1, 1, Q("0.15 in")),
    Sketcher.Constraint("DistanceY", -1, 1, 0, 2, Q("3.2 in")),
    Sketcher.Constraint("DistanceY", -1, 1, 2, 2, Q("2.1 in")),
    Sketcher.Constraint("DistanceX", 2, 2, 0, 2, Q("1.2 in")),
    Sketcher.Constraint("DistanceX", -1, 1, 0, 2, Q("1.01 in")),
])
pad15 = body14.newObject("PartDesign::Pad", "Pad014")
pad15.Profile = sketch19
pad15.Length = Q("0.15 in")
body15 = doc.addObject("PartDesign::Body", "Body014")

sketch20 = body15.newObject("Sketcher::SketchObject", "Sketch019")
sketch20.AttachmentSupport = (doc.getObject("YZ_Plane014"), [""])
sketch20.MapMode = "FlatFace"
sketch20.AttachmentOffset = App.Placement(Vector(0, 0, 0.4 * 25.4), App.Rotation())
sketch20.addGeometry([
    Part.LineSegment(Vector(35.8, 81.3, 0), Vector(32, 81.3, 0)),
    Part.LineSegment(Vector(32, 81.3, 0), Vector(5.3, 53.3, 0)),
    Part.LineSegment(Vector(5.3, 53.3, 0), Vector(9.1, 53.3, 0)),
    Part.LineSegment(Vector(9.1, 53.3, 0), Vector(35.8, 81.3, 0)),
], False)
sketch20.addConstraint([
    Sketcher.Constraint("Coincident", 0, 2, 1, 1),
    Sketcher.Constraint("Coincident", 1, 2, 2, 1),
    Sketcher.Constraint("Coincident", 2, 2, 3, 1),
    Sketcher.Constraint("Coincident", 3, 2, 0, 1),
    Sketcher.Constraint("Horizontal", 0),
    Sketcher.Constraint("Horizontal", 2),
    Sketcher.Constraint("Parallel", 1, 3),
    Sketcher.Constraint("DistanceX", 0, 2, 0, 1, Q("0.15 in")),
    Sketcher.Constraint("DistanceY", -1, 1, 0, 2, Q("3.2 in")),
    Sketcher.Constraint("DistanceY", -1, 1, 1, 2, Q("2.1 in")),
    Sketcher.Constraint("DistanceX", 2, 2, 0, 2, Q("0.9 in")),
    Sketcher.Constraint("DistanceX", -1, 1, 0, 2, Q("1.26 in")),
])
pad16 = body15.newObject("PartDesign::Pad", "Pad015")
pad16.Profile = sketch20
pad16.Length = Q("0.15 in")

doc.recompute()
